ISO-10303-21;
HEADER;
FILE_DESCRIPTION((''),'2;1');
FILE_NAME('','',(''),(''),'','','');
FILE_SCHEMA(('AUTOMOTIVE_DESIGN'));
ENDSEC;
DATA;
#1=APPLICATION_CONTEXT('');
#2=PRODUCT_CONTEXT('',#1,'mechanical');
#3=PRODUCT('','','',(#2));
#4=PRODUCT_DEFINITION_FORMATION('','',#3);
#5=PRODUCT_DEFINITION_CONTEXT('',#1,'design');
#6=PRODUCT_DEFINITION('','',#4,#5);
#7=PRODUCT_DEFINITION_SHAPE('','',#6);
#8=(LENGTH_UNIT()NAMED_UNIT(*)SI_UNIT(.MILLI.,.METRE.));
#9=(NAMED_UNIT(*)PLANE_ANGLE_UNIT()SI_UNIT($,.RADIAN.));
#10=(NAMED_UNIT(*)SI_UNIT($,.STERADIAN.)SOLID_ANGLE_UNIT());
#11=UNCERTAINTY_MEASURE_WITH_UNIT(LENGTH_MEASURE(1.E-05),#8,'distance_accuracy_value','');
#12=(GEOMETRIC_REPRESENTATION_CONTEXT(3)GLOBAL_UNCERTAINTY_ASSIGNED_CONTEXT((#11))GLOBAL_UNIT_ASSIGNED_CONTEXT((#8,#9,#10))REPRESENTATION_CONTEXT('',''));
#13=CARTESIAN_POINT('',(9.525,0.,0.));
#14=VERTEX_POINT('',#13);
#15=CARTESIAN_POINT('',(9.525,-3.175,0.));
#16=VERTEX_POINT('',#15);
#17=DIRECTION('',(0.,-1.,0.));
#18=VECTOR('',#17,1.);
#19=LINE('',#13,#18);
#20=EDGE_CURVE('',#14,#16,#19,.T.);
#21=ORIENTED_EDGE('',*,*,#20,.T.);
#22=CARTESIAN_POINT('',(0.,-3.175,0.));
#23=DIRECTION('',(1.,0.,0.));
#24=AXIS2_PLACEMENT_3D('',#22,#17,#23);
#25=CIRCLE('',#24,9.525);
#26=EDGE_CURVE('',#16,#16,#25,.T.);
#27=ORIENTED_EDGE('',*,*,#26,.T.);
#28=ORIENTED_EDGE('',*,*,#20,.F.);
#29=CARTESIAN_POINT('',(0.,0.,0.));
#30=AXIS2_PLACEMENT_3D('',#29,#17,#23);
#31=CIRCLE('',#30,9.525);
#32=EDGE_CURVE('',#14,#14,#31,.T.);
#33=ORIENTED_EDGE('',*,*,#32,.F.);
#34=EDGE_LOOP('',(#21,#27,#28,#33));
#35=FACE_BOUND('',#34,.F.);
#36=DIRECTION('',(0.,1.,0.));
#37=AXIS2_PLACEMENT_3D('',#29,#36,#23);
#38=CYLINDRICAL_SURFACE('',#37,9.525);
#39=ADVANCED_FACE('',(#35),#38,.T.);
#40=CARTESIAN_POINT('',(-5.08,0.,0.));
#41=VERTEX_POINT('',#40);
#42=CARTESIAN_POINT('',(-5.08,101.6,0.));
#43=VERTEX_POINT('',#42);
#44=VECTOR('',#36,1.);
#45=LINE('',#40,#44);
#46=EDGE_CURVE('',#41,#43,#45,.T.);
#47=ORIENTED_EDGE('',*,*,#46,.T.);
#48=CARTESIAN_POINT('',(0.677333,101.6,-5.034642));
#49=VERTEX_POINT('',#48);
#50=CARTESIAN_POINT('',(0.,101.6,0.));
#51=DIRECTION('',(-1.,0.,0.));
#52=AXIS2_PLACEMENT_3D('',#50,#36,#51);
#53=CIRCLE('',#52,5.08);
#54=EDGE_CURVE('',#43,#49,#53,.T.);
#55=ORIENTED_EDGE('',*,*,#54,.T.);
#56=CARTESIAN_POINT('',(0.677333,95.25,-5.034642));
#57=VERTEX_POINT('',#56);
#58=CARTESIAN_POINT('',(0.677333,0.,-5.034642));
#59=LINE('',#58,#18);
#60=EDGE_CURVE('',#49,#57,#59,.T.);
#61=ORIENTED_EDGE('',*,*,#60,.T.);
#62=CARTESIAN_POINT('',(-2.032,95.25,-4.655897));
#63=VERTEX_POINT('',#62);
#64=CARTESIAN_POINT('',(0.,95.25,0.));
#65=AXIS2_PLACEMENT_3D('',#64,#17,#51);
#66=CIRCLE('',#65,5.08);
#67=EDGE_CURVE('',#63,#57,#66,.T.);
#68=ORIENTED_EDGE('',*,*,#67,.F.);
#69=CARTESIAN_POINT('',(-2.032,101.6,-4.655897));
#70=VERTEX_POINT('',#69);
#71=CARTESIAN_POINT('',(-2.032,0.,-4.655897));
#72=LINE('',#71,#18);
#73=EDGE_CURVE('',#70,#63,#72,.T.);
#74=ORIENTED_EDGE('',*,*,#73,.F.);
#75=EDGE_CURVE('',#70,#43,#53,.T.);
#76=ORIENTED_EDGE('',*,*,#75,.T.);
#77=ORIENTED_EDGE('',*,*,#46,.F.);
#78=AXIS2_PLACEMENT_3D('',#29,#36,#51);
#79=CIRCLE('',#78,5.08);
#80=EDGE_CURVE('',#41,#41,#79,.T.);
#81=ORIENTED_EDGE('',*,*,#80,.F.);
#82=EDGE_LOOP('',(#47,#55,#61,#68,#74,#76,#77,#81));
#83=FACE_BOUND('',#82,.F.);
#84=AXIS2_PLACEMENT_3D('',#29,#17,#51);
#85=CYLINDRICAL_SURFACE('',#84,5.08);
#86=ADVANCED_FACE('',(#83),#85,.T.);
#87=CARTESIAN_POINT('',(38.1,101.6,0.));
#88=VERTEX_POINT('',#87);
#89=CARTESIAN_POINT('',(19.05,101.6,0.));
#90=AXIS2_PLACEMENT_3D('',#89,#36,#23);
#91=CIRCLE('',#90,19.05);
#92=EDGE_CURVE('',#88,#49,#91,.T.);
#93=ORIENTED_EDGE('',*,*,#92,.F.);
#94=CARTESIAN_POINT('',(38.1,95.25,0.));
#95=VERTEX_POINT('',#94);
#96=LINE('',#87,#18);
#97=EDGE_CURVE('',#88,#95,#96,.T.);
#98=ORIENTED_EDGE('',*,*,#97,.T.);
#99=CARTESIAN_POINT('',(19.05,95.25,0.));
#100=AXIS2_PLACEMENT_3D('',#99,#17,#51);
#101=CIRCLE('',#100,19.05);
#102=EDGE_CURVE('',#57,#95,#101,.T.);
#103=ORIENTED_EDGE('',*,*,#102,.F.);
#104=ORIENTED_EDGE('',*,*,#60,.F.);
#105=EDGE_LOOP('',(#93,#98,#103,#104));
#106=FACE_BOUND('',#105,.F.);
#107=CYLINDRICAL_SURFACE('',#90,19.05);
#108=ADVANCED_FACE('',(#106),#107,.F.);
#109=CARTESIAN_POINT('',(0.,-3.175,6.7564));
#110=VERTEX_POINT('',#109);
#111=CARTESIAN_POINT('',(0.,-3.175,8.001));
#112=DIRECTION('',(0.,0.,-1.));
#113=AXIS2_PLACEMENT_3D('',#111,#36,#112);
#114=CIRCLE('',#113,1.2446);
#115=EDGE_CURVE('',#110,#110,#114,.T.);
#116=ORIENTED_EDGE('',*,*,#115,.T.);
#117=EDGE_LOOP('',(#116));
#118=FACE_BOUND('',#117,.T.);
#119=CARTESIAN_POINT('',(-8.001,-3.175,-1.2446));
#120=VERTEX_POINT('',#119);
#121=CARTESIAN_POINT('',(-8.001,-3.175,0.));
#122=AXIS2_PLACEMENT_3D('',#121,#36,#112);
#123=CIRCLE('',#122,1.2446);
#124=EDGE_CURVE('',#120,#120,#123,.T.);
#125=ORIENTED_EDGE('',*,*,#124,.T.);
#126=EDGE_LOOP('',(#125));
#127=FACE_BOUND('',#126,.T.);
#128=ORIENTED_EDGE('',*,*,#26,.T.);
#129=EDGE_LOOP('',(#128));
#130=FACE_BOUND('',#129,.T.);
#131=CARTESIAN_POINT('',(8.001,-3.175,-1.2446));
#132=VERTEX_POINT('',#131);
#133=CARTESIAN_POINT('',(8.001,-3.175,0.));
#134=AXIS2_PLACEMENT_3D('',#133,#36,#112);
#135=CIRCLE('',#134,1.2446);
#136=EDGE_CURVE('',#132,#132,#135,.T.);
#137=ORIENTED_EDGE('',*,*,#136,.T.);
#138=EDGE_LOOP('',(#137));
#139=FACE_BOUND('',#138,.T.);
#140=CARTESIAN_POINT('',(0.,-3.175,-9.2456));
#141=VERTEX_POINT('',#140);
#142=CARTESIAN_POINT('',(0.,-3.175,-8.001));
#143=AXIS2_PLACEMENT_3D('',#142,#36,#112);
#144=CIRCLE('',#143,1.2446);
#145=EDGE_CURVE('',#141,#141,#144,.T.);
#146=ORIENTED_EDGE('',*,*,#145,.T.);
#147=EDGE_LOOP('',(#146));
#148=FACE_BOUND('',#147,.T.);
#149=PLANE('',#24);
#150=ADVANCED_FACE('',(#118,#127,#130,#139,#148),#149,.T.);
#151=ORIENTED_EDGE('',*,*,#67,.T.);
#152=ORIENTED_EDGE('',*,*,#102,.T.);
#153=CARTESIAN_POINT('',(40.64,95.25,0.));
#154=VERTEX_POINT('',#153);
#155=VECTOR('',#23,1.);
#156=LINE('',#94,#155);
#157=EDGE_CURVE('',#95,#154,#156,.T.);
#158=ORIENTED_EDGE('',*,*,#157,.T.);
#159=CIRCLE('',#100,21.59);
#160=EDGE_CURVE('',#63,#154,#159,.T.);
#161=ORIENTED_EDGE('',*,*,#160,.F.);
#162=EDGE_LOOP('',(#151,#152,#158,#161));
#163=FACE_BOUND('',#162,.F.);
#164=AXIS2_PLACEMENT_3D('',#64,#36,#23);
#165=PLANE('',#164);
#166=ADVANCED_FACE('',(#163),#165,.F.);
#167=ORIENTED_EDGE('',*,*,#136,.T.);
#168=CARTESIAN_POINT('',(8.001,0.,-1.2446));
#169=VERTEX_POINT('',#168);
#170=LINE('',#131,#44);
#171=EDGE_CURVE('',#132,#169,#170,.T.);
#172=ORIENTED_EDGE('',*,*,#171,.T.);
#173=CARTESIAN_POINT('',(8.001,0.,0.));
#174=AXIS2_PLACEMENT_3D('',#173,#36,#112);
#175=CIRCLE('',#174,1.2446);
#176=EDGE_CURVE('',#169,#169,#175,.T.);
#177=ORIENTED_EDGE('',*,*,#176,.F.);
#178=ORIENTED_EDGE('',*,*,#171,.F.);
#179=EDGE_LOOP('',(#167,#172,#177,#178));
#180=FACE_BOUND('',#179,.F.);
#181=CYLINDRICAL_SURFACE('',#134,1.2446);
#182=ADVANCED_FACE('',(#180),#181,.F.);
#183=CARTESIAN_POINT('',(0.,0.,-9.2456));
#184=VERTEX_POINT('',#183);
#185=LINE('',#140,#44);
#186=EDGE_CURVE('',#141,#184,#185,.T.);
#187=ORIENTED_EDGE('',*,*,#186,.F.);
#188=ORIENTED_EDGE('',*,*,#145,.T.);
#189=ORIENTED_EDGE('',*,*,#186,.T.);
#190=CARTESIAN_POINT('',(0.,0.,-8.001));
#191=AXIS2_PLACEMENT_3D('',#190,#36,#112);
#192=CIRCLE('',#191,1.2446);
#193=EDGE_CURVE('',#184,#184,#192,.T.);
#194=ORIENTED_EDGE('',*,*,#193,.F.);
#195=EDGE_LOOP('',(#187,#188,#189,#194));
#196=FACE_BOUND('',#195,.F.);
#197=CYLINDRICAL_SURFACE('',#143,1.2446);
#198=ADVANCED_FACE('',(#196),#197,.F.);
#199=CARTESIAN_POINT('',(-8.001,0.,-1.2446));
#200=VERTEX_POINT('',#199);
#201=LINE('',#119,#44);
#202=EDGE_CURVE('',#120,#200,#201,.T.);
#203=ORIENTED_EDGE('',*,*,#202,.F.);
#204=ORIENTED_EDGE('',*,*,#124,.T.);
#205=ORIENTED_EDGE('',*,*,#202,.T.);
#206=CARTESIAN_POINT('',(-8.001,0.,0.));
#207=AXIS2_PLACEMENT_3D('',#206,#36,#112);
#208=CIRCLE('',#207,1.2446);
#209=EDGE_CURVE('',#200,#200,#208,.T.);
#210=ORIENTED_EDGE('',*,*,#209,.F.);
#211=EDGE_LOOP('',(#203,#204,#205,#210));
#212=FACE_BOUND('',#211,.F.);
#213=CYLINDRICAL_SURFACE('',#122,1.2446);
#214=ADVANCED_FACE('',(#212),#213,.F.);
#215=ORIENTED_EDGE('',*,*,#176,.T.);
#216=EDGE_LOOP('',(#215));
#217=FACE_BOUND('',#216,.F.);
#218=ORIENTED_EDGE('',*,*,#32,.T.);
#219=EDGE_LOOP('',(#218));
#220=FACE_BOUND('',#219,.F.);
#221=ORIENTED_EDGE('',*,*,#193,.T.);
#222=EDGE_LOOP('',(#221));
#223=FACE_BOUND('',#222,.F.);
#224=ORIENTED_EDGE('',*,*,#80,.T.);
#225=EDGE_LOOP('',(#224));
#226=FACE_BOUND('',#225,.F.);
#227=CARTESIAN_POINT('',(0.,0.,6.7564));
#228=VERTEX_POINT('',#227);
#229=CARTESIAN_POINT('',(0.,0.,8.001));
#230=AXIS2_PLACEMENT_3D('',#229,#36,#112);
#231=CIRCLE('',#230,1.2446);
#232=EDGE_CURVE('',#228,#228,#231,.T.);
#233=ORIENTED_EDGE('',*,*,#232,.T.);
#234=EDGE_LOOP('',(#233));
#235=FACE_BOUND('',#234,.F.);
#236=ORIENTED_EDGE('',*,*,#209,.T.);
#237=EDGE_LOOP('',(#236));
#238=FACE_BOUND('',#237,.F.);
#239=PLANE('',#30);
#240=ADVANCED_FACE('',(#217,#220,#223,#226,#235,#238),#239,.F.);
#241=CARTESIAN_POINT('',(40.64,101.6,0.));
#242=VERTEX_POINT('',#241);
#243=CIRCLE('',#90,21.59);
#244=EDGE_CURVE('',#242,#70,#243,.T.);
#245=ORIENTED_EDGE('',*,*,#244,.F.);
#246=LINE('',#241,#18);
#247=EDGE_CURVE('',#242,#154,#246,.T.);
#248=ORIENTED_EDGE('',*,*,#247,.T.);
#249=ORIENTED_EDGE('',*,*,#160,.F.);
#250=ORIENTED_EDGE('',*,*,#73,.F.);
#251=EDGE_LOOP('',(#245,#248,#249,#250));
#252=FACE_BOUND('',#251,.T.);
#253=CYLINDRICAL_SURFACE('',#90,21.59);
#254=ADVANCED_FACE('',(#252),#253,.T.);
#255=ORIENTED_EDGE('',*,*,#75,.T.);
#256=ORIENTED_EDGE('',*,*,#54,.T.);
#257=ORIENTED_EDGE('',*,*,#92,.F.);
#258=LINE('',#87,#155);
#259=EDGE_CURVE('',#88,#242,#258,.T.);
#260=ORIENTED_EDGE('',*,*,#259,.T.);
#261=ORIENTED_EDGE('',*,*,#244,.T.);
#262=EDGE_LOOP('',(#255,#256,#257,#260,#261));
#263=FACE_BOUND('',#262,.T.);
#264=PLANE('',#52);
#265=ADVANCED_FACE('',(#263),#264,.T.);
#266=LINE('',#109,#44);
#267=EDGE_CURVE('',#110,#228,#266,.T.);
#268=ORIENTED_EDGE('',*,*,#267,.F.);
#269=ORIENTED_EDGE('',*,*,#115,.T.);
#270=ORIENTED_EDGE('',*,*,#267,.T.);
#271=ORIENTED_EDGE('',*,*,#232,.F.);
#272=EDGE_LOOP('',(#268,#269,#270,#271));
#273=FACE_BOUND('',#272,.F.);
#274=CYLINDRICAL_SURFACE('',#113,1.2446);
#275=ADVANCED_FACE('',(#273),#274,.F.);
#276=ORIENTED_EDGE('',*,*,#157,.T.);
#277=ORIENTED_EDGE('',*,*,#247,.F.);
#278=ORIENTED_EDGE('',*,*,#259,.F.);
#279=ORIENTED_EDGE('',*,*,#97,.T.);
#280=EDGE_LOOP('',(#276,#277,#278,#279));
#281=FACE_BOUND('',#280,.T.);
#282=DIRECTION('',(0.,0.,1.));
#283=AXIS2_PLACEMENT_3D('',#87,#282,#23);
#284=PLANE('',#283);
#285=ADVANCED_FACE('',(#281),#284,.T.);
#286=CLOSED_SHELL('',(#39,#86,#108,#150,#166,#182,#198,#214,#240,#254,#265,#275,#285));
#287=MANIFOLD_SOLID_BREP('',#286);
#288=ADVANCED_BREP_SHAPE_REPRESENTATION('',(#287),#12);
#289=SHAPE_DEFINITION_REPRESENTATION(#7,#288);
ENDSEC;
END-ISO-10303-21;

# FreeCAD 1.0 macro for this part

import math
import FreeCAD as App
import Part
import Sketcher
Q = App.Units.Quantity

doc = App.newDocument("Part")
body = doc.addObject("PartDesign::Body", "Body")

# Sketch on XZ plane
sketch1 = doc.addObject("Sketcher::SketchObject", "Sketch")
body.addObject(sketch1)
sketch1.AttachmentSupport = (doc.XZ_Plane, [""])
sketch1.MapMode = "FlatFace"
sketch1.addGeometry(Part.Circle(App.Vector(0, 0, 0), App.Vector(0, 0, 1), 5.08), False)
sketch1.addConstraint([
    Sketcher.Constraint("Coincident", 0, 3, -1, 1),
    Sketcher.Constraint("Diameter", 0, Q("0.4 in")),
])
pad1 = doc.addObject("PartDesign::Pad", "Pad")
body.addObject(pad1)
pad1.Profile = sketch1
pad1.Length = Q("4 in")
pad1.Reversed = True

# Sketch on XZ plane
sketch2 = doc.addObject("Sketcher::SketchObject", "Sketch001")
body.addObject(sketch2)
sketch2.AttachmentSupport = (doc.XZ_Plane, [""])
sketch2.MapMode = "FlatFace"
sketch2.AttachmentOffset = App.Placement(App.Vector(0, 0, -4 * 25.4), App.Rotation())
sketch2.addGeometry([
    Part.ArcOfCircle(Part.Circle(App.Vector(19.05, 0, 0), App.Vector(0, 0, 1), 19.05), math.radians(180), math.radians(360)),
    Part.LineSegment(App.Vector(38.1, 0, 0), App.Vector(40.64, 0, 0)),
    Part.ArcOfCircle(Part.Circle(App.Vector(19.05, 0, 0), App.Vector(0, 0, 1), 21.59), math.radians(180), math.radians(360)),
    Part.LineSegment(App.Vector(-2.54, 0, 0), App.Vector(0, 0, 0)),
], False)
sketch2.addConstraint([
    Sketcher.Constraint("Coincident", 0, 2, 1, 1),
    Sketcher.Constraint("Coincident", 1, 2, 2, 2),
    Sketcher.Constraint("Coincident", 2, 1, 3, 1),
    Sketcher.Constraint("Coincident", 3, 2, 0, 1),
    Sketcher.Constraint("Horizontal", 1),
    Sketcher.Constraint("Horizontal", 3),
    Sketcher.Constraint("Coincident", 3, 2, -1, 1),
    Sketcher.Constraint("Coincident", 2, 3, 0, 3),
    Sketcher.Constraint("PointOnObject", 0, 3, -1),
    Sketcher.Constraint("PointOnObject", 0, 2, -1),
    Sketcher.Constraint("Radius", 0, Q("0.75 in")),
    Sketcher.Constraint("Radius", 2, Q("0.85 in")),
])
pad2 = doc.addObject("PartDesign::Pad", "Pad001")
body.addObject(pad2)
pad2.Profile = sketch2
pad2.Length = Q("0.25 in")

# Sketch on XZ plane
sketch3 = doc.addObject("Sketcher::SketchObject", "Sketch002")
body.addObject(sketch3)
sketch3.AttachmentSupport = (doc.XZ_Plane, [""])
sketch3.MapMode = "FlatFace"
sketch3.addGeometry(Part.Circle(App.Vector(0, 0, 0), App.Vector(0, 0, 1), 9.525), False)
sketch3.addConstraint([
    Sketcher.Constraint("Coincident", 0, 3, -1, 1),
    Sketcher.Constraint("Diameter", 0, Q("0.75 in")),
])
pad3 = doc.addObject("PartDesign::Pad", "Pad002")
body.addObject(pad3)
pad3.Profile = sketch3
pad3.Length = Q("0.125 in")

# Sketch on XZ plane
sketch4 = doc.addObject("Sketcher::SketchObject", "Sketch003")
body.addObject(sketch4)
sketch4.AttachmentSupport = (doc.XZ_Plane, [""])
sketch4.MapMode = "FlatFace"
sketch4.AttachmentOffset = App.Placement(App.Vector(0, 0, 0.125 * 25.4), App.Rotation())
sketch4.addGeometry([
    Part.Circle(App.Vector(0, 8.001, 0), App.Vector(0, 0, 1), 1.2446),
    Part.Circle(App.Vector(0, -8.001, 0), App.Vector(0, 0, 1), 1.2446),
    Part.Circle(App.Vector(8.001, 0, 0), App.Vector(0, 0, 1), 1.2446),
    Part.Circle(App.Vector(-8.001, 0, 0), App.Vector(0, 0, 1), 1.2446),
], False)
sketch4.addConstraint([
    Sketcher.Constraint("Equal", 0, 1),
    Sketcher.Constraint("Equal", 1, 2),
    Sketcher.Constraint("Equal", 2, 3),
    Sketcher.Constraint("Symmetric", 0, 3, 1, 3, -1, 1),
    Sketcher.Constraint("Symmetric", 2, 3, 3, 3, -1, 1),
    Sketcher.Constraint("PointOnObject", 0, 3, -2),
    Sketcher.Constraint("PointOnObject", 2, 3, -1),
    Sketcher.Constraint("Diameter", 0, Q("0.098 in")),
    Sketcher.Constraint("DistanceY", 1, 3, 0, 3, Q("0.63 in")),
    Sketcher.Constraint("DistanceX", 3, 3, 2, 3, Q("0.63 in")),
])
doc.recompute()
hole = doc.addObject("PartDesign::Hole", "Hole")
body.addObject(hole)
hole.Profile = sketch4
hole.ThreadType = "None"
hole.Diameter = Q("0.098 in")
hole.DepthType = "Dimension"
hole.Depth = Q("1 in")
hole.DrillPoint = "Angled"
hole.DrillPointAngle = 118

doc.recompute()
